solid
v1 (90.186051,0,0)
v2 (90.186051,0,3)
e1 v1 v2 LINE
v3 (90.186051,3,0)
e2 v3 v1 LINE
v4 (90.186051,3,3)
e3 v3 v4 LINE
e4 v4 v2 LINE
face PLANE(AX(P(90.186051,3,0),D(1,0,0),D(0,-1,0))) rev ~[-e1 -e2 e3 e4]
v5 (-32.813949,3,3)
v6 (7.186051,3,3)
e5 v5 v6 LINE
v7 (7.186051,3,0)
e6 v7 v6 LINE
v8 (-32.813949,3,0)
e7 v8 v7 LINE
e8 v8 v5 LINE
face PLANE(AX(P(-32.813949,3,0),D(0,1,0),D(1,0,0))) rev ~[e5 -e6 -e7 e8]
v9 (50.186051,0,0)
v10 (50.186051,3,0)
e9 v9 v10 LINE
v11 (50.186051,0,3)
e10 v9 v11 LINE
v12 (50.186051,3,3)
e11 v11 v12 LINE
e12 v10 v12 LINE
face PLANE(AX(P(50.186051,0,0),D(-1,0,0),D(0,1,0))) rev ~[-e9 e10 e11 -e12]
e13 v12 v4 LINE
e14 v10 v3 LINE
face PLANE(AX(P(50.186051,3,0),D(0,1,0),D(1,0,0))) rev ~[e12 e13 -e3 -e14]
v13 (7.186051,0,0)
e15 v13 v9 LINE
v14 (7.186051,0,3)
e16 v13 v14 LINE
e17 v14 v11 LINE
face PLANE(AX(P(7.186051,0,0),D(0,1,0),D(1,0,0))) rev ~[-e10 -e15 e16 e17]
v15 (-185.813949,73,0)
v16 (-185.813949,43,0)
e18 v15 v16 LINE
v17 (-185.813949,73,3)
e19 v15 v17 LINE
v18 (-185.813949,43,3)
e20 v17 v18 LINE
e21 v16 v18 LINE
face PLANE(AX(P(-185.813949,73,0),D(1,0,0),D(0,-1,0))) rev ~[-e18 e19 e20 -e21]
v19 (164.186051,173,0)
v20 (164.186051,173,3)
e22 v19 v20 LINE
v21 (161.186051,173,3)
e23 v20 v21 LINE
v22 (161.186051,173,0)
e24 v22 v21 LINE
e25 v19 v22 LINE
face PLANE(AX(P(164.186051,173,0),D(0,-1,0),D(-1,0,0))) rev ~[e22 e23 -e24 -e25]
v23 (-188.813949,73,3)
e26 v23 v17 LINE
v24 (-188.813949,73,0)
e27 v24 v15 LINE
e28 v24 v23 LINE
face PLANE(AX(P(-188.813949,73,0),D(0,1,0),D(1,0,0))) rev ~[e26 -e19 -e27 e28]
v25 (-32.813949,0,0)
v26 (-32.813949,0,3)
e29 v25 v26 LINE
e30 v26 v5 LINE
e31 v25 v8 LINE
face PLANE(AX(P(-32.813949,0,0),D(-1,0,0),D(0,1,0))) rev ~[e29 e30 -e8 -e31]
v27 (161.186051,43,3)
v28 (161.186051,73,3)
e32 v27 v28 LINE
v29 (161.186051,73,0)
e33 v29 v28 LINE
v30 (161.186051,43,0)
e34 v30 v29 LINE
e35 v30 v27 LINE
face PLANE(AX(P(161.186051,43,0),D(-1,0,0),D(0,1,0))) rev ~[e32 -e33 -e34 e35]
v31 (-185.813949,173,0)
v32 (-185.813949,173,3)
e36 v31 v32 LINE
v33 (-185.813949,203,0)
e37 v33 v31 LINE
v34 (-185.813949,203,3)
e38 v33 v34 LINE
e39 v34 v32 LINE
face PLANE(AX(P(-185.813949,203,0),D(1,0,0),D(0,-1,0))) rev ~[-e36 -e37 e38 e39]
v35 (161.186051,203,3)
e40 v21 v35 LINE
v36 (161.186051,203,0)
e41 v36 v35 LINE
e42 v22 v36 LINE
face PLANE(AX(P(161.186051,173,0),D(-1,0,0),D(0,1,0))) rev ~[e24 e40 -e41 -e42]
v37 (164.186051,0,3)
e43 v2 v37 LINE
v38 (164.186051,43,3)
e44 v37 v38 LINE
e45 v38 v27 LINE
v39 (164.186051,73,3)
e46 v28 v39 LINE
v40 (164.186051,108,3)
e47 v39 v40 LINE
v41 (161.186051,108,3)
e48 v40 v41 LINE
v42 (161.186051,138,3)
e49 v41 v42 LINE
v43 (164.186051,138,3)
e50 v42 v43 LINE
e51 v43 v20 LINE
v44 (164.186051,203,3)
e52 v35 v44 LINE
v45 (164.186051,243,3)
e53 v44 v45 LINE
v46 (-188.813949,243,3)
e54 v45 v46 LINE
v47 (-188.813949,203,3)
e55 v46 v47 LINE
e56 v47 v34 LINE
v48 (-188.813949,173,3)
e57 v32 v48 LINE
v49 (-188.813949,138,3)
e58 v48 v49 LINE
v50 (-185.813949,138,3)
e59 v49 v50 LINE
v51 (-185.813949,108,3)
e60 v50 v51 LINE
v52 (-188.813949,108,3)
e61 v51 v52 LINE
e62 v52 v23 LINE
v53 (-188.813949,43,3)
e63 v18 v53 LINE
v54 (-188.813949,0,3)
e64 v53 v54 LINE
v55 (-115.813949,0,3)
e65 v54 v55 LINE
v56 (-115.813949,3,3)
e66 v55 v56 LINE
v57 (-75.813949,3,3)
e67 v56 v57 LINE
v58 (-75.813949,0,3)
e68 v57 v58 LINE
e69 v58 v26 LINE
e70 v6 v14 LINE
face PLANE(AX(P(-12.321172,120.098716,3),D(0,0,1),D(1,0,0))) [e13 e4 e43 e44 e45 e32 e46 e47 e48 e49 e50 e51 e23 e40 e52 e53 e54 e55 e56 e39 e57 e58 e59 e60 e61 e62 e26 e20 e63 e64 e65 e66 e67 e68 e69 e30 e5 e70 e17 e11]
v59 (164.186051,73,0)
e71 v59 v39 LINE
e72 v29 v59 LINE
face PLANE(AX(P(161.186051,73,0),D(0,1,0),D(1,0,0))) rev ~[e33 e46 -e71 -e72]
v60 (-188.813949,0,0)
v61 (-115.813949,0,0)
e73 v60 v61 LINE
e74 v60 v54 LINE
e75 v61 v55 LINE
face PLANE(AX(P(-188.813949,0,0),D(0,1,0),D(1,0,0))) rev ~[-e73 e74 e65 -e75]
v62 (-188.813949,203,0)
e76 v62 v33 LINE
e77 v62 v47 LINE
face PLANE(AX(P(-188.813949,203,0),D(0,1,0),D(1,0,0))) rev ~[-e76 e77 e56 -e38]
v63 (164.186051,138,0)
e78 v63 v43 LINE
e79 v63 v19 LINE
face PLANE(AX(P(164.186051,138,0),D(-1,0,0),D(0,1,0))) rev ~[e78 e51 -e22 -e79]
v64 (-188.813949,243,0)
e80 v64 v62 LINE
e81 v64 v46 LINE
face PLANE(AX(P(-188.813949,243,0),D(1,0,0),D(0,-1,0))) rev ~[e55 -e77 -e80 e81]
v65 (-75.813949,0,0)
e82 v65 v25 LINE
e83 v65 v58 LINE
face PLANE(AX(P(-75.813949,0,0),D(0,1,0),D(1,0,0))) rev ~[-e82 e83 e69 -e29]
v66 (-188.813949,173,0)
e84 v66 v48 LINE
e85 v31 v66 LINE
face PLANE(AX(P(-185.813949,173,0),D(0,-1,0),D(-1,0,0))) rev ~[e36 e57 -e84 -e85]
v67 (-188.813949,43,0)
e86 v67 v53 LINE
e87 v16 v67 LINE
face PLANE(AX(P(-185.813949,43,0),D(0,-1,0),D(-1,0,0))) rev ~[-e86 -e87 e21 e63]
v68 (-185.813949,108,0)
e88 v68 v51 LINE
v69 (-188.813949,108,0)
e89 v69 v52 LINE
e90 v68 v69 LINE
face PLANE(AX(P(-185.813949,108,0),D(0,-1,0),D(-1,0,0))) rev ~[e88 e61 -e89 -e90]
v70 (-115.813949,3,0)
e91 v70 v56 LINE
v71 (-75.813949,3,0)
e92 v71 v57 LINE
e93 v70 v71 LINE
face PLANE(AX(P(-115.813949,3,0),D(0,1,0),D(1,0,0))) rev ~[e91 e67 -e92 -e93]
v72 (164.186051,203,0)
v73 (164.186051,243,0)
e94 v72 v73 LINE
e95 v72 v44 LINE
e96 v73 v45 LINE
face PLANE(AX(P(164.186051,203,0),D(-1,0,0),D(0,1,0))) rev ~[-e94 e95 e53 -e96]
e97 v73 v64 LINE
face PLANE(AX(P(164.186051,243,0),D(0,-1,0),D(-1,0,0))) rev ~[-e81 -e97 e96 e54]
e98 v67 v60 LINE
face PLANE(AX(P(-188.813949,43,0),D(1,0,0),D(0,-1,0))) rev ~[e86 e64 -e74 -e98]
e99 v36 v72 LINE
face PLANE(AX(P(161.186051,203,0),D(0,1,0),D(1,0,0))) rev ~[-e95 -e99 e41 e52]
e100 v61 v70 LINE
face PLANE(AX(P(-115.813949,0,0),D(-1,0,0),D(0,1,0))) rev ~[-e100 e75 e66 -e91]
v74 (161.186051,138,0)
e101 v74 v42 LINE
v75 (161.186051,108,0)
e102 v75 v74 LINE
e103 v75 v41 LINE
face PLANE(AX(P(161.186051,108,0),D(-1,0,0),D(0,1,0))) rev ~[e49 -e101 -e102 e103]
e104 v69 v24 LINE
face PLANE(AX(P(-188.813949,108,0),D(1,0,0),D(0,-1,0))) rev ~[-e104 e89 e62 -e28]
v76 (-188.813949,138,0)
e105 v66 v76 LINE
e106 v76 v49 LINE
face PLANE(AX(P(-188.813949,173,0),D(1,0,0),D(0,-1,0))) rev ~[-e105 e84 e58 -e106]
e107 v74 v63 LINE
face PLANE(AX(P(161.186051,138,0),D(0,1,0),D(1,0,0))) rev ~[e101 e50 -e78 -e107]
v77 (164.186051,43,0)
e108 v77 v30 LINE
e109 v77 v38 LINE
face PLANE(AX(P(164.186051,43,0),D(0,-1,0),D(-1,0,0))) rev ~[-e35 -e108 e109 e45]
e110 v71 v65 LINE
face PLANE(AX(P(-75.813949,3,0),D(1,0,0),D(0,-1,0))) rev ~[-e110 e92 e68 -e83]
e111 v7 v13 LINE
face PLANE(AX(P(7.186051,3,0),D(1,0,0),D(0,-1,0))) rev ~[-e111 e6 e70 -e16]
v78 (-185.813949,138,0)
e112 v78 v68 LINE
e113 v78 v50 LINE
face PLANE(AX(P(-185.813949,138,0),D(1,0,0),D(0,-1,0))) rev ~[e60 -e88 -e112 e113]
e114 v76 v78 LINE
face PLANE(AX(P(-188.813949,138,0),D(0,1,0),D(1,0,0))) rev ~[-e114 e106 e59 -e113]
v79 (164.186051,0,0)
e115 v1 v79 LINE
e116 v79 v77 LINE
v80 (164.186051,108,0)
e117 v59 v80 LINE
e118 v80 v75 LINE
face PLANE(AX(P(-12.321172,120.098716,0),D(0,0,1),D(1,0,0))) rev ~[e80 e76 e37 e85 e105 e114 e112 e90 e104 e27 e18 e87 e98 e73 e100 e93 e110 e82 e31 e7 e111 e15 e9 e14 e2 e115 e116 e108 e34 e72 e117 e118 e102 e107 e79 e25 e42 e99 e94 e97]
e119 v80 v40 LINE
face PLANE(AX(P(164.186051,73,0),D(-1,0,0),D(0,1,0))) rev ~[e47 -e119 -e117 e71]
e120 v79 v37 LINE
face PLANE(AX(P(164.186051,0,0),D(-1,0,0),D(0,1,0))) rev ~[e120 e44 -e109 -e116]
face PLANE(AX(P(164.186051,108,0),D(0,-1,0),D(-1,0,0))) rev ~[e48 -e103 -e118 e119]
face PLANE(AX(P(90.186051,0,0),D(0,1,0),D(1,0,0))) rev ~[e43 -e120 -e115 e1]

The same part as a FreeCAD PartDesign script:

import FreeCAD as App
import Part
import Sketcher
from FreeCAD import Vector
Q = App.Units.Quantity


def add_polygon(sketch, points):
    """Adds a closed chain of lines whose ends are joined by coincident constraints."""
    first, n = sketch.GeometryCount, len(points)
    for a, b in zip(points, points[1:] + points[:1]):
        sketch.addGeometry(Part.LineSegment(App.Vector(*a, 0), App.Vector(*b, 0)), False)
    for i in range(n):
        sketch.addConstraint(Sketcher.Constraint("Coincident", first + i, 2, first + (i + 1) % n, 1))

doc = App.newDocument("Part")
params = doc.addObject("Spreadsheet::Sheet", "Params")
for row, (alias, value) in enumerate([
    ("sketch1_width", "73 mm"),
    ("sketch1_width2", "40 mm"),
    ("sketch1_width3", "43 mm"),
    ("sketch1_width4", "74 mm"),
    ("sketch1_width5", "3 mm"),
    ("pad1_length", "3 mm"),
], start=1):
    params.set(f"A{row}", alias)
    params.set(f"B{row}", "=" + value)
    params.setAlias(f"B{row}", alias)

body = doc.addObject("PartDesign::Body", "Body")

# Sketch on XY plane
sketch1 = body.newObject("Sketcher::SketchObject", "Sketch")
sketch1.AttachmentSupport = (doc.getObject("XY_Plane"), [""])
sketch1.MapMode = "FlatFace"
add_polygon(sketch1, [(-188.813949, 43), (-188.813949, 0), (-115.813949, 0), (-115.813949, 3), (-75.813949, 3), (-75.813949, 0), (-32.813949, 0), (-32.813949, 3), (7.186051, 3), (7.186051, 0), (50.186051, 0), (50.186051, 3), (90.186051, 3), (90.186051, 0), (164.186051, 0), (164.186051, 43), (161.186051, 43), (161.186051, 73), (164.186051, 73), (164.186051, 108), (161.186051, 108), (161.186051, 138), (164.186051, 138), (164.186051, 173), (161.186051, 173), (161.186051, 203), (164.186051, 203), (164.186051, 243), (-188.813949, 243), (-188.813949, 203), (-185.813949, 203), (-185.813949, 173), (-188.813949, 173), (-188.813949, 138), (-185.813949, 138), (-185.813949, 108), (-188.813949, 108), (-188.813949, 73), (-185.813949, 73), (-185.813949, 43)])  # lines 0-39
sketch1.addConstraint([
    Sketcher.Constraint("Vertical", 0),
    Sketcher.Constraint("Horizontal", 1),
    Sketcher.Constraint("Vertical", 2),
    Sketcher.Constraint("Horizontal", 3),
    Sketcher.Constraint("Vertical", 4),
    Sketcher.Constraint("Horizontal", 5),
    Sketcher.Constraint("Vertical", 6),
    Sketcher.Constraint("Horizontal", 7),
    Sketcher.Constraint("Vertical", 8),
    Sketcher.Constraint("Horizontal", 9),
    Sketcher.Constraint("Vertical", 10),
    Sketcher.Constraint("Horizontal", 11),
    Sketcher.Constraint("Vertical", 12),
    Sketcher.Constraint("Horizontal", 13),
    Sketcher.Constraint("Vertical", 14),
    Sketcher.Constraint("Horizontal", 15),
    Sketcher.Constraint("Vertical", 16),
    Sketcher.Constraint("Horizontal", 17),
    Sketcher.Constraint("Vertical", 18),
    Sketcher.Constraint("Horizontal", 19),
    Sketcher.Constraint("Vertical", 20),
    Sketcher.Constraint("Horizontal", 21),
    Sketcher.Constraint("Vertical", 22),
    Sketcher.Constraint("Horizontal", 23),
    Sketcher.Constraint("Vertical", 24),
    Sketcher.Constraint("Horizontal", 25),
    Sketcher.Constraint("Vertical", 26),
    Sketcher.Constraint("Horizontal", 27),
    Sketcher.Constraint("Vertical", 28),
    Sketcher.Constraint("Horizontal", 29),
    Sketcher.Constraint("Vertical", 30),
    Sketcher.Constraint("Horizontal", 31),
    Sketcher.Constraint("Vertical", 32),
    Sketcher.Constraint("Horizontal", 33),
    Sketcher.Constraint("Vertical", 34),
    Sketcher.Constraint("Horizontal", 35),
    Sketcher.Constraint("Vertical", 36),
    Sketcher.Constraint("Horizontal", 37),
    Sketcher.Constraint("Vertical", 38),
    Sketcher.Constraint("Horizontal", 39),
    Sketcher.Constraint("PointOnObject", 0, 2, -1),
    Sketcher.Constraint("PointOnObject", 4, 2, -1),
    Sketcher.Constraint("PointOnObject", 8, 2, -1),
    Sketcher.Constraint("PointOnObject", 12, 2, -1),
    Sketcher.Constraint("Horizontal", 3, 2, 6, 2),
    Sketcher.Constraint("Horizontal", 7, 2, 10, 2),
    Sketcher.Constraint("Horizontal", 25, 2, 28, 2),
    Sketcher.Constraint("Horizontal", 23, 2, 30, 2),
    Sketcher.Constraint("Horizontal", 21, 2, 32, 2),
    Sketcher.Constraint("Horizontal", 19, 2, 34, 2),
    Sketcher.Constraint("Horizontal", 17, 2, 36, 2),
    Sketcher.Constraint("Horizontal", 15, 2, 38, 2),
    Sketcher.Constraint("Vertical", 14, 2, 17, 2),
    Sketcher.Constraint("Vertical", 16, 2, 19, 2),
    Sketcher.Constraint("Vertical", 18, 2, 21, 2),
    Sketcher.Constraint("Vertical", 20, 2, 23, 2),
    Sketcher.Constraint("Vertical", 22, 2, 25, 2),
    Sketcher.Constraint("Vertical", 0, 2, 27, 2),
    Sketcher.Constraint("Vertical", 28, 2, 31, 2),
    Sketcher.Constraint("Vertical", 30, 2, 33, 2),
    Sketcher.Constraint("Vertical", 32, 2, 35, 2),
    Sketcher.Constraint("Vertical", 34, 2, 37, 2),
    Sketcher.Constraint("Equal", 3, 7),
    Sketcher.Constraint("Equal", 5, 9),
    Sketcher.Constraint("Equal", 7, 11),
    Sketcher.Constraint("Equal", 25, 29),
    Sketcher.Constraint("Equal", 9, 0),
    Sketcher.Constraint("Equal", 39, 2),
    Sketcher.Constraint("Equal", 16, 20),
    Sketcher.Constraint("Equal", 18, 22),
    Sketcher.Constraint("Equal", 20, 24),
    Sketcher.Constraint("Equal", 11, 26),
    Sketcher.Constraint("DistanceX", 1, 1, 1, 2, Q("73 mm")),
    Sketcher.Constraint("DistanceX", 3, 1, 3, 2, Q("40 mm")),
    Sketcher.Constraint("DistanceX", 5, 1, 5, 2, Q("43 mm")),
    Sketcher.Constraint("DistanceX", 13, 1, 13, 2, Q("74 mm")),
    Sketcher.Constraint("DistanceX", 15, 2, 15, 1, Q("3 mm")),
    Sketcher.Constraint("DistanceY", 16, 1, 16, 2, Q("30 mm")),
    Sketcher.Constraint("DistanceY", 18, 1, 18, 2, Q("35 mm")),
    Sketcher.Constraint("DistanceX", 0, 2, -1, 1, Q("188.813949 mm")),
])
sketch1.setExpression("Constraints[112]", "Params.sketch1_width")
sketch1.setExpression("Constraints[113]", "Params.sketch1_width2")
sketch1.setExpression("Constraints[114]", "Params.sketch1_width3")
sketch1.setExpression("Constraints[115]", "Params.sketch1_width4")
sketch1.setExpression("Constraints[116]", "Params.sketch1_width5")
pad1 = body.newObject("PartDesign::Pad", "Pad")
pad1.Profile = sketch1
pad1.setExpression("Length", "Params.pad1_length")

doc.recompute()
